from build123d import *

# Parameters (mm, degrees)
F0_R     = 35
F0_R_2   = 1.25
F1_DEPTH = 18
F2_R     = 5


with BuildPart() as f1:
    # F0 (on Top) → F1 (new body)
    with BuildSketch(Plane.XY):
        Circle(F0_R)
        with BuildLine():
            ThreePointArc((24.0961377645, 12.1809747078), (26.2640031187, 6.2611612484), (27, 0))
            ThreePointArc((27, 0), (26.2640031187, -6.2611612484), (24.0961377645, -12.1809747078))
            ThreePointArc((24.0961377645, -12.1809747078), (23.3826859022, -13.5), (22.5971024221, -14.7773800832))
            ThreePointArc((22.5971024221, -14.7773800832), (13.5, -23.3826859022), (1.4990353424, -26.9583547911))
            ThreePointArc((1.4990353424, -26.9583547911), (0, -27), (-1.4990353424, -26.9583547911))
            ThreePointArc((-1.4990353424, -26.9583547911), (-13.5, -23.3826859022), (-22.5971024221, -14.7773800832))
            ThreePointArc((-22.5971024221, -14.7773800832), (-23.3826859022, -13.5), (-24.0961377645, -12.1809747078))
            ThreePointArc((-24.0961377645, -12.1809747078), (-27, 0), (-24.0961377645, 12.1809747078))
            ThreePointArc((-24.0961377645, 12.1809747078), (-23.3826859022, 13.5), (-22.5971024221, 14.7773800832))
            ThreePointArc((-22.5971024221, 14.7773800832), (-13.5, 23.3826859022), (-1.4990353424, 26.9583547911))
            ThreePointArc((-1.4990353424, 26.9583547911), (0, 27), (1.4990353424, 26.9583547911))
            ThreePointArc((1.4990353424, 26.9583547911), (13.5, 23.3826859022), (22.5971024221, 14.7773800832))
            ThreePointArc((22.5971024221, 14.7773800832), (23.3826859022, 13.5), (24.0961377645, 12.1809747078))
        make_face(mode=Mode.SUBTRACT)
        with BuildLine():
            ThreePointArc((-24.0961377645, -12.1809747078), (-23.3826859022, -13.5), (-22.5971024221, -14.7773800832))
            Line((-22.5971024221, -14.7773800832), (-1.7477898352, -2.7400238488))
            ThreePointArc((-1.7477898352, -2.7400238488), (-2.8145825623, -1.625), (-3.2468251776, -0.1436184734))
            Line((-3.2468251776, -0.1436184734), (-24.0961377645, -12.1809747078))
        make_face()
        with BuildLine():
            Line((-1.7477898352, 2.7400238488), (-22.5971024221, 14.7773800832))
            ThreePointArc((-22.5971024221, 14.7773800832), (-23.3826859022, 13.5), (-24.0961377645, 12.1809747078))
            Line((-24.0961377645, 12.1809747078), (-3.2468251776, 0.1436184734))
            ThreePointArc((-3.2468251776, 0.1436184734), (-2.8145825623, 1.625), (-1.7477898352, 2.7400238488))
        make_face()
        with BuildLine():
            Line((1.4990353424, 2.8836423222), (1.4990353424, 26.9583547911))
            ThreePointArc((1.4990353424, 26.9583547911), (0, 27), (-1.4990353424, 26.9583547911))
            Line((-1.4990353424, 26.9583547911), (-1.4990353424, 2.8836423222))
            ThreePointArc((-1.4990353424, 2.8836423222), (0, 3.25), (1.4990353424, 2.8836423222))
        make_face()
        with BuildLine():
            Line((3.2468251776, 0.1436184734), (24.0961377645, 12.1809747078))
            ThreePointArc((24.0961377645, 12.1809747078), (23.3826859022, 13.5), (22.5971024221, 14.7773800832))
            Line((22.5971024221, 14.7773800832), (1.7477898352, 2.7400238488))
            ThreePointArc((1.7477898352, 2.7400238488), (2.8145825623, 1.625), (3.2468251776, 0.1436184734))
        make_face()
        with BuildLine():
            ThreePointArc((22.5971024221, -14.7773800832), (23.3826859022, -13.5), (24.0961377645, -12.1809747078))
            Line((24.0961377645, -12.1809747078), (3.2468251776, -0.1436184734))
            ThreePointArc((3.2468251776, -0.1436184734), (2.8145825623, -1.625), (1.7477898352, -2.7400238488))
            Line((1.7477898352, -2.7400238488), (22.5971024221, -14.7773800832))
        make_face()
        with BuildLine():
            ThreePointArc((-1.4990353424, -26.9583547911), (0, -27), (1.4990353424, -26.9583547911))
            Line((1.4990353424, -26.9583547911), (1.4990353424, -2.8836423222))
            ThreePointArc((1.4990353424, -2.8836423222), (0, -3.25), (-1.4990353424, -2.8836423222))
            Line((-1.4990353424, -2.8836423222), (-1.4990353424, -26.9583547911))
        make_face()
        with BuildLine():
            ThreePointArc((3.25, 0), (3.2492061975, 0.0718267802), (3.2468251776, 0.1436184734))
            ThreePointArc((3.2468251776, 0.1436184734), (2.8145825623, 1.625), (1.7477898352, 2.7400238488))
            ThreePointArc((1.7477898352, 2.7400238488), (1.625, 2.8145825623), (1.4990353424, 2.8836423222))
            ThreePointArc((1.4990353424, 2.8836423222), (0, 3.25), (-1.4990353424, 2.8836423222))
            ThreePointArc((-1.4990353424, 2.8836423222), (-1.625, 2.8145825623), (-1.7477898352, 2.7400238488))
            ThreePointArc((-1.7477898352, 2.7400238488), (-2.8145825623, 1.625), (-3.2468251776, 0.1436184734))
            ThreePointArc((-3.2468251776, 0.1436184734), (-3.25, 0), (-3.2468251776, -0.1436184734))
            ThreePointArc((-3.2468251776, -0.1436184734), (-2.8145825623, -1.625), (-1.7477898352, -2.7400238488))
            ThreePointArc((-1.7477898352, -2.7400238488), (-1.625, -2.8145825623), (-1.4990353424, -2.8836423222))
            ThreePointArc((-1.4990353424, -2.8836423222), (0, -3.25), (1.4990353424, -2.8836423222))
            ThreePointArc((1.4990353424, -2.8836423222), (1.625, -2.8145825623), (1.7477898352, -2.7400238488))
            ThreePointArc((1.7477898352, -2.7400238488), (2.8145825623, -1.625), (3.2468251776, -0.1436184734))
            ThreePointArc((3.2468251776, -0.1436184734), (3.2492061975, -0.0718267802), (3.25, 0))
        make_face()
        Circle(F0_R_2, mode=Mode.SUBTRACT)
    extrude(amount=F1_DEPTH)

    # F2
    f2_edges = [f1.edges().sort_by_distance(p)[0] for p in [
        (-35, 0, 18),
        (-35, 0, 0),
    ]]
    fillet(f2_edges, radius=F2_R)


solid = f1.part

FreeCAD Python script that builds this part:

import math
import FreeCAD as App
import Part
import Sketcher

V = App.Vector
Q = App.Units.Quantity


def edges_at(feature, points):
    """Names of the edges that pass closest to the given points."""
    edges = feature.Shape.Edges
    near = lambda p: min(range(len(edges)), key=lambda i: edges[i].distToShape(Part.Vertex(*p))[0])
    return sorted({f"Edge{near(p) + 1}" for p in points})

doc = App.newDocument("Part")
body = doc.addObject("PartDesign::Body", "Body")

sketch1 = doc.addObject("Sketcher::SketchObject", "Sketch")
body.addObject(sketch1)
sketch1.AttachmentSupport = (doc.XY_Plane, [""])
sketch1.MapMode = "FlatFace"
sketch1.addGeometry(Part.Circle(V(0, 0, 0), V(0, 0, 1), 35), False)
sketch1.addGeometry(Part.LineSegment(V(-1.5, -2.88, 0), V(-1.5, -26.96, 0)), False)
sketch1.addGeometry(Part.ArcOfCircle(Part.Circle(V(0, 0, 0), V(0, 0, 1), 27), math.radians(-147), math.radians(-93)), False)
sketch1.addGeometry(Part.LineSegment(V(-22.6, -14.78, 0), V(-1.75, -2.74, 0)), False)
sketch1.addGeometry(Part.ArcOfCircle(Part.Circle(V(0, 0, 0), V(0, 0, 1), 3.25), math.radians(-122.53), math.radians(-117.47)), False)
sketch1.addGeometry(Part.LineSegment(V(1.75, -2.74, 0), V(22.6, -14.78, 0)), False)
sketch1.addGeometry(Part.ArcOfCircle(Part.Circle(V(0, 0, 0), V(0, 0, 1), 27), math.radians(-87), math.radians(-33)), False)
sketch1.addGeometry(Part.LineSegment(V(1.5, -26.96, 0), V(1.5, -2.88, 0)), False)
sketch1.addGeometry(Part.ArcOfCircle(Part.Circle(V(0, 0, 0), V(0, 0, 1), 3.25), math.radians(-62.53), math.radians(-57.47)), False)
sketch1.addGeometry(Part.LineSegment(V(-3.25, -0.14, 0), V(-24.1, -12.18, 0)), False)
sketch1.addGeometry(Part.ArcOfCircle(Part.Circle(V(0, 0, 0), V(0, 0, 1), 27), math.radians(153), math.radians(207)), False)
sketch1.addGeometry(Part.LineSegment(V(-24.1, 12.18, 0), V(-3.25, 0.14, 0)), False)
sketch1.addGeometry(Part.ArcOfCircle(Part.Circle(V(0, 0, 0), V(0, 0, 1), 3.25), math.radians(177.47), math.radians(182.53)), False)
sketch1.addGeometry(Part.Circle(V(0, 0, 0), V(0, 0, 1), 1.25), False)
sketch1.addGeometry(Part.LineSegment(V(-1.75, 2.74, 0), V(-22.6, 14.78, 0)), False)
sketch1.addGeometry(Part.ArcOfCircle(Part.Circle(V(0, 0, 0), V(0, 0, 1), 27), math.radians(93), math.radians(147)), False)
sketch1.addGeometry(Part.LineSegment(V(-1.5, 26.96, 0), V(-1.5, 2.88, 0)), False)
sketch1.addGeometry(Part.ArcOfCircle(Part.Circle(V(0, 0, 0), V(0, 0, 1), 3.25), math.radians(117.47), math.radians(122.53)), False)
sketch1.addGeometry(Part.ArcOfCircle(Part.Circle(V(0, 0, 0), V(0, 0, 1), 27), math.radians(0), math.radians(27)), False)
sketch1.addGeometry(Part.ArcOfCircle(Part.Circle(V(0, 0, 0), V(0, 0, 1), 27), math.radians(-27), math.radians(0)), False)
sketch1.addGeometry(Part.LineSegment(V(24.1, -12.18, 0), V(3.25, -0.14, 0)), False)
sketch1.addGeometry(Part.ArcOfCircle(Part.Circle(V(0, 0, 0), V(0, 0, 1), 3.25), math.radians(-2.53), math.radians(0)), False)
sketch1.addGeometry(Part.ArcOfCircle(Part.Circle(V(0, 0, 0), V(0, 0, 1), 3.25), math.radians(0), math.radians(2.53)), False)
sketch1.addGeometry(Part.LineSegment(V(3.25, 0.14, 0), V(24.1, 12.18, 0)), False)
sketch1.addGeometry(Part.LineSegment(V(1.5, 2.88, 0), V(1.5, 26.96, 0)), False)
sketch1.addGeometry(Part.ArcOfCircle(Part.Circle(V(0, 0, 0), V(0, 0, 1), 27), math.radians(33), math.radians(87)), False)
sketch1.addGeometry(Part.LineSegment(V(22.6, 14.78, 0), V(1.75, 2.74, 0)), False)
sketch1.addGeometry(Part.ArcOfCircle(Part.Circle(V(0, 0, 0), V(0, 0, 1), 3.25), math.radians(57.47), math.radians(62.53)), False)
sketch1.addConstraint(Sketcher.Constraint("Coincident", 1, 2, 2, 2))
sketch1.addConstraint(Sketcher.Constraint("Coincident", 2, 1, 3, 1))
sketch1.addConstraint(Sketcher.Constraint("Coincident", 3, 2, 4, 1))
sketch1.addConstraint(Sketcher.Constraint("Coincident", 4, 2, 1, 1))
sketch1.addConstraint(Sketcher.Constraint("Coincident", 5, 2, 6, 2))
sketch1.addConstraint(Sketcher.Constraint("Coincident", 6, 1, 7, 1))
sketch1.addConstraint(Sketcher.Constraint("Coincident", 7, 2, 8, 1))
sketch1.addConstraint(Sketcher.Constraint("Coincident", 8, 2, 5, 1))
sketch1.addConstraint(Sketcher.Constraint("Coincident", 9, 2, 10, 2))
sketch1.addConstraint(Sketcher.Constraint("Coincident", 10, 1, 11, 1))
sketch1.addConstraint(Sketcher.Constraint("Coincident", 11, 2, 12, 1))
sketch1.addConstraint(Sketcher.Constraint("Coincident", 12, 2, 9, 1))
sketch1.addConstraint(Sketcher.Constraint("Coincident", 14, 2, 15, 2))
sketch1.addConstraint(Sketcher.Constraint("Coincident", 15, 1, 16, 1))
sketch1.addConstraint(Sketcher.Constraint("Coincident", 16, 2, 17, 1))
sketch1.addConstraint(Sketcher.Constraint("Coincident", 17, 2, 14, 1))
sketch1.addConstraint(Sketcher.Constraint("Tangent", 18, 1, 19, 2))
sketch1.addConstraint(Sketcher.Constraint("Coincident", 19, 1, 20, 1))
sketch1.addConstraint(Sketcher.Constraint("Coincident", 20, 2, 21, 1))
sketch1.addConstraint(Sketcher.Constraint("Tangent", 21, 2, 22, 1))
sketch1.addConstraint(Sketcher.Constraint("Coincident", 22, 2, 23, 1))
sketch1.addConstraint(Sketcher.Constraint("Coincident", 23, 2, 18, 2))
sketch1.addConstraint(Sketcher.Constraint("Coincident", 24, 2, 25, 2))
sketch1.addConstraint(Sketcher.Constraint("Coincident", 25, 1, 26, 1))
sketch1.addConstraint(Sketcher.Constraint("Coincident", 26, 2, 27, 1))
sketch1.addConstraint(Sketcher.Constraint("Coincident", 27, 2, 24, 1))
sketch1.addConstraint(Sketcher.Constraint("Vertical", 1))
sketch1.addConstraint(Sketcher.Constraint("Vertical", 7))
sketch1.addConstraint(Sketcher.Constraint("Vertical", 16))
sketch1.addConstraint(Sketcher.Constraint("Vertical", 24))
sketch1.addConstraint(Sketcher.Constraint("Coincident", 0, 3, -1, 1))
sketch1.addConstraint(Sketcher.Constraint("Coincident", 2, 3, -1, 1))
sketch1.addConstraint(Sketcher.Constraint("Coincident", 4, 3, -1, 1))
sketch1.addConstraint(Sketcher.Constraint("Coincident", 6, 3, -1, 1))
sketch1.addConstraint(Sketcher.Constraint("Coincident", 8, 3, -1, 1))
sketch1.addConstraint(Sketcher.Constraint("Coincident", 10, 3, -1, 1))
sketch1.addConstraint(Sketcher.Constraint("Coincident", 12, 3, -1, 1))
sketch1.addConstraint(Sketcher.Constraint("Coincident", 13, 3, -1, 1))
sketch1.addConstraint(Sketcher.Constraint("Coincident", 15, 3, -1, 1))
sketch1.addConstraint(Sketcher.Constraint("Coincident", 17, 3, -1, 1))
sketch1.addConstraint(Sketcher.Constraint("Coincident", 18, 3, -1, 1))
sketch1.addConstraint(Sketcher.Constraint("Coincident", 21, 3, -1, 1))
sketch1.addConstraint(Sketcher.Constraint("Coincident", 25, 3, -1, 1))
sketch1.addConstraint(Sketcher.Constraint("Coincident", 27, 3, -1, 1))
sketch1.addConstraint(Sketcher.Constraint("Equal", 2, 6))
sketch1.addConstraint(Sketcher.Constraint("Equal", 4, 8))
sketch1.addConstraint(Sketcher.Constraint("Equal", 6, 10))
sketch1.addConstraint(Sketcher.Constraint("Equal", 8, 12))
sketch1.addConstraint(Sketcher.Constraint("Equal", 10, 15))
sketch1.addConstraint(Sketcher.Constraint("Equal", 12, 17))
sketch1.addConstraint(Sketcher.Constraint("Equal", 15, 18))
sketch1.addConstraint(Sketcher.Constraint("Equal", 18, 19))
sketch1.addConstraint(Sketcher.Constraint("Equal", 17, 21))
sketch1.addConstraint(Sketcher.Constraint("Equal", 21, 22))
sketch1.addConstraint(Sketcher.Constraint("Equal", 19, 25))
sketch1.addConstraint(Sketcher.Constraint("Equal", 22, 27))
sketch1.addConstraint(Sketcher.Constraint("PointOnObject", 18, 1, -1))
sketch1.addConstraint(Sketcher.Constraint("PointOnObject", 21, 2, -1))
sketch1.addConstraint(Sketcher.Constraint("Parallel", 3, 9))
sketch1.addConstraint(Sketcher.Constraint("Parallel", 5, 11))
sketch1.addConstraint(Sketcher.Constraint("Parallel", 11, 14))
sketch1.addConstraint(Sketcher.Constraint("Parallel", 14, 20))
sketch1.addConstraint(Sketcher.Constraint("Parallel", 9, 23))
sketch1.addConstraint(Sketcher.Constraint("Parallel", 23, 26))
sketch1.addConstraint(Sketcher.Constraint("Horizontal", 2, 1, 5, 2))
sketch1.addConstraint(Sketcher.Constraint("Horizontal", 1, 2, 6, 1))
sketch1.addConstraint(Sketcher.Constraint("Horizontal", 3, 2, 8, 2))
sketch1.addConstraint(Sketcher.Constraint("Horizontal", 9, 2, 19, 1))
sketch1.addConstraint(Sketcher.Constraint("Horizontal", 11, 2, 22, 2))
sketch1.addConstraint(Sketcher.Constraint("Horizontal", 15, 1, 24, 2))
sketch1.addConstraint(Sketcher.Constraint("Horizontal", 14, 2, 25, 1))
sketch1.addConstraint(Sketcher.Constraint("Vertical", 9, 2, 10, 1))
sketch1.addConstraint(Sketcher.Constraint("Vertical", 2, 1, 14, 2))
sketch1.addConstraint(Sketcher.Constraint("Vertical", 4, 2, 15, 1))
sketch1.addConstraint(Sketcher.Constraint("Equal", 5, 9))
sketch1.addConstraint(Sketcher.Constraint("Diameter", 0, Q("70 mm")))
sketch1.addConstraint(Sketcher.Constraint("Radius", 2, Q("27 mm")))
sketch1.addConstraint(Sketcher.Constraint("Diameter", 13, Q("2.5 mm")))
sketch1.addConstraint(Sketcher.Constraint("Angle", 3, Q("30 deg")))
sketch1.addConstraint(Sketcher.Constraint("Radius", 4, Q("3.25 mm")))
sketch1.addConstraint(Sketcher.Constraint("DistanceY", 3, 2, 10, 1, Q("14.920999 mm")))
sketch1.addConstraint(Sketcher.Constraint("DistanceY", 1, 2, 1, 1, Q("24.074712 mm")))
pad1 = doc.addObject("PartDesign::Pad", "Pad")
body.addObject(pad1)
pad1.Profile = sketch1
pad1.Length = 18
doc.recompute()

fillet = doc.addObject("PartDesign::Fillet", "Fillet")
body.addObject(fillet)
fillet.Base = (pad1, edges_at(pad1, [(-35, 0, 18), (-35, 0, 0)]))
fillet.Radius = 5

doc.recompute()
